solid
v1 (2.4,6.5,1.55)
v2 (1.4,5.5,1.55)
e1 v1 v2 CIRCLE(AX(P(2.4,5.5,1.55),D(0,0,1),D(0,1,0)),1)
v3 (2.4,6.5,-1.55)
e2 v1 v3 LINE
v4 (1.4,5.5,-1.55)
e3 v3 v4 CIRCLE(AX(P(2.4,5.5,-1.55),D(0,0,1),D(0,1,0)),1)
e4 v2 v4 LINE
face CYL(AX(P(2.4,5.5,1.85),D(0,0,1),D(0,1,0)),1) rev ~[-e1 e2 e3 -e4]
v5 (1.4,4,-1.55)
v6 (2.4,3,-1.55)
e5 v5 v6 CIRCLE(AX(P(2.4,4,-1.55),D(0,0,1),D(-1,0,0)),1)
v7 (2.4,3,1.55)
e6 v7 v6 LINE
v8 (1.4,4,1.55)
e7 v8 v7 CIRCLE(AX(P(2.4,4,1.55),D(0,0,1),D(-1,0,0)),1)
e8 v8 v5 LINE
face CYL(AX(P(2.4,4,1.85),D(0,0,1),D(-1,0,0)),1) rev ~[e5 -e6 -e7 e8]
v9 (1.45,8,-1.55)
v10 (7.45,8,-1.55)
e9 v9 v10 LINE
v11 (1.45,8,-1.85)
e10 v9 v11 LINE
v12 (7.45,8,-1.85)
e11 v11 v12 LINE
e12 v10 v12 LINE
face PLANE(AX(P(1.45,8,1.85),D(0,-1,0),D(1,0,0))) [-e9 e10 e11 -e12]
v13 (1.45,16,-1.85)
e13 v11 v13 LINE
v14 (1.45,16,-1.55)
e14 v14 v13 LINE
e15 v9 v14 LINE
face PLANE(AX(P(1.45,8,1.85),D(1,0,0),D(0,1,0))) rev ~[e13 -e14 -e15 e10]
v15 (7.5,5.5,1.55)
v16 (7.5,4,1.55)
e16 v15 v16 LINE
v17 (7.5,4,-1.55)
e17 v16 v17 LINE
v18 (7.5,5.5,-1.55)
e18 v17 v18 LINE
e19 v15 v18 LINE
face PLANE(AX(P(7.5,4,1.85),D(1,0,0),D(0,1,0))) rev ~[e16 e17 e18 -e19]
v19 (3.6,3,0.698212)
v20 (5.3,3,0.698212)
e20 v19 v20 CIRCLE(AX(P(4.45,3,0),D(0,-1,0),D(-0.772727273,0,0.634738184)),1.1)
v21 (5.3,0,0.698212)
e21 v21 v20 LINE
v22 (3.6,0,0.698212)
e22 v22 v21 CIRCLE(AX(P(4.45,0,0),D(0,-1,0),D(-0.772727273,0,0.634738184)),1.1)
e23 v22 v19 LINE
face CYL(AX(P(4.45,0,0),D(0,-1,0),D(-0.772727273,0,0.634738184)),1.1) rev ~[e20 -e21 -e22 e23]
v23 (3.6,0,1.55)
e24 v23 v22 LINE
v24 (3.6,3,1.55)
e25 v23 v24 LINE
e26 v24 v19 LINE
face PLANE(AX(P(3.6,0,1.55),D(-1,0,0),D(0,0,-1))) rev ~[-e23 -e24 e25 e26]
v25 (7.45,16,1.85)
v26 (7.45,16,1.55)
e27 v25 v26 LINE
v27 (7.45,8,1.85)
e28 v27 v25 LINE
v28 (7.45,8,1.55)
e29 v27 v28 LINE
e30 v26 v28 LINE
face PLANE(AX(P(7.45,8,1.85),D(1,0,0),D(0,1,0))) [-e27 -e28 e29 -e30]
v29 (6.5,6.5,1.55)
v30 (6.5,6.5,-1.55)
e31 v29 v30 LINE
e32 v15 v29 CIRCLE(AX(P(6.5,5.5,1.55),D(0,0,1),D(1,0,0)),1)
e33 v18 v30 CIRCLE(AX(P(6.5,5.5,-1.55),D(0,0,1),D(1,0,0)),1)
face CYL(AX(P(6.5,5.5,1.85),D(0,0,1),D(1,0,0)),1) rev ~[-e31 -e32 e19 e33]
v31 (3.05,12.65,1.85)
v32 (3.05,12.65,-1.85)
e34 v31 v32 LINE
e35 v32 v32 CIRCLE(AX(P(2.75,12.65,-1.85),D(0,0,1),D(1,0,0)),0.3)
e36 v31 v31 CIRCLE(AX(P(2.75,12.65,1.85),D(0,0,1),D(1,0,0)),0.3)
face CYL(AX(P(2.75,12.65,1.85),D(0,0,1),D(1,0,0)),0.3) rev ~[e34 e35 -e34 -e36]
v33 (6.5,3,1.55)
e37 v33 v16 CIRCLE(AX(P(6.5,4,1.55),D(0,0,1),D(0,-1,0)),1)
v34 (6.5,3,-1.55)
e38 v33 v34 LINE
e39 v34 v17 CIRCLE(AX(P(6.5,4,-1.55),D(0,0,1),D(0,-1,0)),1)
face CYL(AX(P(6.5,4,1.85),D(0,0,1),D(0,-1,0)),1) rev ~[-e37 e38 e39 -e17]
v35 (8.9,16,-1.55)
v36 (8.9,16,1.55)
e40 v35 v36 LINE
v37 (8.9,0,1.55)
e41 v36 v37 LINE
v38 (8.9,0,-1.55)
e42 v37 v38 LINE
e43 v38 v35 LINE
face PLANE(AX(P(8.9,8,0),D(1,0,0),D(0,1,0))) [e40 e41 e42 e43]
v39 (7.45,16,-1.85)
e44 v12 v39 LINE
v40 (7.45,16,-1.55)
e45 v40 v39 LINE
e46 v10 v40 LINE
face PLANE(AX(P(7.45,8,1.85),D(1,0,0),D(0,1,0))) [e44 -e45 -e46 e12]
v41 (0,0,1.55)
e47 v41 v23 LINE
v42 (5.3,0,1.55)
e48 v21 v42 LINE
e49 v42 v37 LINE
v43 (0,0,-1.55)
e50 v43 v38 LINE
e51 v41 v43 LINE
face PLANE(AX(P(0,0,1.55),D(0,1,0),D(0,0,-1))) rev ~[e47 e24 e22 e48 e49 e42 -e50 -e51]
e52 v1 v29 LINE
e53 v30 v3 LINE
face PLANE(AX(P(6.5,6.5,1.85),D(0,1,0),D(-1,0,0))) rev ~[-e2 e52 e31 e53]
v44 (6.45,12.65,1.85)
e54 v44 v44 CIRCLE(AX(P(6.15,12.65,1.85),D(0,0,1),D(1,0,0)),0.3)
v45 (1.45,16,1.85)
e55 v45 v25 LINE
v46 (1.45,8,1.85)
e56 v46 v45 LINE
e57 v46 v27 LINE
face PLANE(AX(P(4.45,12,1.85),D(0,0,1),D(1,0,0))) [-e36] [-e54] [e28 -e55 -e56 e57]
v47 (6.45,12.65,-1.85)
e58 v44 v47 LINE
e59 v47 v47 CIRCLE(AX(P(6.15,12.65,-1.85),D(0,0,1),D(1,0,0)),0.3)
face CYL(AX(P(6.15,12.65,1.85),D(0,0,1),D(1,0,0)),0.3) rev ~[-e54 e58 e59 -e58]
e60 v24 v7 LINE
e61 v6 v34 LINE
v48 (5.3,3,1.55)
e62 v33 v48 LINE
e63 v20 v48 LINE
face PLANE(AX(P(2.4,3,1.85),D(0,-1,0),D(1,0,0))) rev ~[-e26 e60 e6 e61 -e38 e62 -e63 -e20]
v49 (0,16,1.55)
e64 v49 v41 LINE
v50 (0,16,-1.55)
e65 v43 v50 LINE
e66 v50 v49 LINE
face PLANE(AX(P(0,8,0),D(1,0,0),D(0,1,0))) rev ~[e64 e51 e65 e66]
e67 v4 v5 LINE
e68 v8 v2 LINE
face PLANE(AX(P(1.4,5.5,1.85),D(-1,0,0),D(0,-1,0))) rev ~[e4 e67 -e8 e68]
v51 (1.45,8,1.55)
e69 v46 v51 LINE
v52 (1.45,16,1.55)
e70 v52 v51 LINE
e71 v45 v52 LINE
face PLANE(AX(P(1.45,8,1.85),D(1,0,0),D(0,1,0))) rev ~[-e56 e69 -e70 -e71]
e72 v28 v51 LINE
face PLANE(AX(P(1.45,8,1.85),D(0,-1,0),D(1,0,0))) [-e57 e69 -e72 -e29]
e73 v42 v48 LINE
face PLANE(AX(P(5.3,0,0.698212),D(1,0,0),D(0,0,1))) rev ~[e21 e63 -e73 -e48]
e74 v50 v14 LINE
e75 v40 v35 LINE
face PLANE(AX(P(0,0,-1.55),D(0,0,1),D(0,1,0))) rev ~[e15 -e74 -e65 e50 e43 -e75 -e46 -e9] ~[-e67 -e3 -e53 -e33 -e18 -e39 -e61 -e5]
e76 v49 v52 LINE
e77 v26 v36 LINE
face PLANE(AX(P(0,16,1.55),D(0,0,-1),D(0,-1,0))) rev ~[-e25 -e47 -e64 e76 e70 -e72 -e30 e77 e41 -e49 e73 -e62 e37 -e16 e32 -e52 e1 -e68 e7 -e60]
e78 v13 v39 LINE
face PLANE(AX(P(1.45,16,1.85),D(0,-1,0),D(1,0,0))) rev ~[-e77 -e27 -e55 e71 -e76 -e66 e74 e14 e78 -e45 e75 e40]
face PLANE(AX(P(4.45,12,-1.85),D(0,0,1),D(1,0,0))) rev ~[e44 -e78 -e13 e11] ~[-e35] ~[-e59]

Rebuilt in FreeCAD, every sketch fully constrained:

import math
import FreeCAD as App
import Part
import Sketcher


def add_polygon(sketch, points):
    """Adds a closed chain of lines whose ends are joined by coincident constraints."""
    first, n = sketch.GeometryCount, len(points)
    for a, b in zip(points, points[1:] + points[:1]):
        sketch.addGeometry(Part.LineSegment(App.Vector(*a, 0), App.Vector(*b, 0)), False)
    for i in range(n):
        sketch.addConstraint(Sketcher.Constraint("Coincident", first + i, 2, first + (i + 1) % n, 1))

doc = App.newDocument("Part")
body = doc.addObject("PartDesign::Body", "Body")

# Sketch on YZ plane
sketch1 = body.newObject("Sketcher::SketchObject", "Sketch")
sketch1.AttachmentSupport = (doc.getObject("YZ_Plane"), [""])
sketch1.MapMode = "FlatFace"
add_polygon(sketch1, [(0, 1.6), (0, -1.6), (16, -1.6), (16, 1.6)])  # lines 0-3
sketch1.addConstraint([
    Sketcher.Constraint("Vertical", 0),
    Sketcher.Constraint("Horizontal", 1),
    Sketcher.Constraint("Vertical", 2),
    Sketcher.Constraint("Horizontal", 3),
    Sketcher.Constraint("Symmetric", 0, 2, 3, 2, -1, 1),
    Sketcher.Constraint("DistanceX", 1, 1, 1, 2, 16.0),
    Sketcher.Constraint("DistanceY", 0, 2, 0, 1, 3.1),
])
pad1 = body.newObject("PartDesign::Pad", "Pad")
pad1.Profile = sketch1
pad1.Length = 8.9

# Sketch on XY plane
sketch2 = body.newObject("Sketcher::SketchObject", "Sketch001")
sketch2.AttachmentSupport = (doc.getObject("XY_Plane"), [""])
sketch2.MapMode = "FlatFace"
sketch2.AttachmentOffset = App.Placement(App.Vector(0, 0, 1.85), App.Rotation())
add_polygon(sketch2, [(1, 16), (1, 8), (7, 8), (7, 16)])  # lines 0-3
sketch2.addConstraint([
    Sketcher.Constraint("Vertical", 0),
    Sketcher.Constraint("Horizontal", 1),
    Sketcher.Constraint("Vertical", 2),
    Sketcher.Constraint("Horizontal", 3),
    Sketcher.Constraint("DistanceX", 1, 1, 1, 2, 6.0),
    Sketcher.Constraint("DistanceY", 0, 2, 0, 1, 8.0),
    Sketcher.Constraint("DistanceY", -1, 1, 0, 2, 8.0),
    Sketcher.Constraint("DistanceX", -1, 1, 0, 2, 1.45),
])
pad2 = body.newObject("PartDesign::Pad", "Pad001")
pad2.Profile = sketch2
pad2.Length = 3.7
pad2.Reversed = True

# Sketch on XY plane
sketch3 = body.newObject("Sketcher::SketchObject", "Sketch002")
sketch3.AttachmentSupport = (doc.getObject("XY_Plane"), [""])
sketch3.MapMode = "FlatFace"
sketch3.AttachmentOffset = App.Placement(App.Vector(0, 0, 1.85), App.Rotation())
sketch3.addGeometry([
    Part.ArcOfCircle(Part.Circle(App.Vector(2.4, 4, 0), App.Vector(0, 0, 1), 1), math.radians(180), math.radians(270)),  # 0
    Part.LineSegment(App.Vector(2.4, 3, 0), App.Vector(6.5, 3, 0)),  # 1
    Part.ArcOfCircle(Part.Circle(App.Vector(6.5, 4, 0), App.Vector(0, 0, 1), 1), math.radians(-90), math.radians(0)),  # 2
    Part.LineSegment(App.Vector(7.5, 4, 0), App.Vector(7.5, 5.5, 0)),  # 3
    Part.ArcOfCircle(Part.Circle(App.Vector(6.5, 5.5, 0), App.Vector(0, 0, 1), 1), math.radians(0), math.radians(90)),  # 4
    Part.LineSegment(App.Vector(6.5, 6.5, 0), App.Vector(2.4, 6.5, 0)),  # 5
    Part.ArcOfCircle(Part.Circle(App.Vector(2.4, 5.5, 0), App.Vector(0, 0, 1), 1), math.radians(90), math.radians(180)),  # 6
    Part.LineSegment(App.Vector(1.4, 5.5, 0), App.Vector(1.4, 4, 0)),  # 7
    Part.Circle(App.Vector(2.75, 12.65, 0), App.Vector(0, 0, 1), 0.3),  # 8
    Part.Circle(App.Vector(6.15, 12.65, 0), App.Vector(0, 0, 1), 0.3),  # 9
], False)
sketch3.addConstraint([
    Sketcher.Constraint("Tangent", 0, 2, 1, 1),
    Sketcher.Constraint("Tangent", 1, 2, 2, 1),
    Sketcher.Constraint("Tangent", 2, 2, 3, 1),
    Sketcher.Constraint("Tangent", 3, 2, 4, 1),
    Sketcher.Constraint("Tangent", 4, 2, 5, 1),
    Sketcher.Constraint("Tangent", 5, 2, 6, 1),
    Sketcher.Constraint("Tangent", 6, 2, 7, 1),
    Sketcher.Constraint("Tangent", 7, 2, 0, 1),
    Sketcher.Constraint("Horizontal", 1),
    Sketcher.Constraint("Vertical", 3),
    Sketcher.Constraint("Horizontal", 5),
    Sketcher.Constraint("Vertical", 7),
    Sketcher.Constraint("Equal", 0, 2),
    Sketcher.Constraint("Equal", 2, 4),
    Sketcher.Constraint("Equal", 4, 6),
    Sketcher.Constraint("Equal", 8, 9),
    Sketcher.Constraint("Horizontal", 8, 3, 9, 3),
    Sketcher.Constraint("Radius", 0, 1.0),
    Sketcher.Constraint("Diameter", 8, 0.6),
    Sketcher.Constraint("DistanceX", 1, 1, 1, 2, 4.1),
    Sketcher.Constraint("DistanceY", 3, 1, 3, 2, 1.5),
    Sketcher.Constraint("DistanceY", -1, 1, 0, 3, 4.0),
    Sketcher.Constraint("DistanceX", -1, 1, 0, 3, 2.4),
    Sketcher.Constraint("DistanceX", 8, 3, 9, 3, 3.4),
    Sketcher.Constraint("DistanceX", -1, 1, 8, 3, 2.75),
    Sketcher.Constraint("DistanceY", -1, 1, 8, 3, 12.65),
])
pocket1 = body.newObject("PartDesign::Pocket", "Pocket")
pocket1.Profile = sketch3
pocket1.Type = "ThroughAll"

# Sketch on XZ plane
sketch4 = body.newObject("Sketcher::SketchObject", "Sketch003")
sketch4.AttachmentSupport = (doc.getObject("XZ_Plane"), [""])
sketch4.MapMode = "FlatFace"
sketch4.addGeometry([
    Part.LineSegment(App.Vector(5.3, 1.6, 0), App.Vector(3.6, 1.6, 0)),
    Part.LineSegment(App.Vector(3.6, 1.6, 0), App.Vector(3.6, 0.7, 0)),
    Part.ArcOfCircle(Part.Circle(App.Vector(4.5, 0, 0), App.Vector(0, 0, 1), 1.1), math.radians(141), math.radians(399)),
    Part.LineSegment(App.Vector(5.3, 0.7, 0), App.Vector(5.3, 1.6, 0)),
], False)
sketch4.addConstraint([
    Sketcher.Constraint("Coincident", 0, 2, 1, 1),
    Sketcher.Constraint("Coincident", 1, 2, 2, 1),
    Sketcher.Constraint("Coincident", 2, 2, 3, 1),
    Sketcher.Constraint("Coincident", 3, 2, 0, 1),
    Sketcher.Constraint("Horizontal", 0),
    Sketcher.Constraint("Vertical", 1),
    Sketcher.Constraint("Vertical", 3),
    Sketcher.Constraint("PointOnObject", 2, 3, -1),
    Sketcher.Constraint("Horizontal", 1, 2, 2, 2),
    Sketcher.Constraint("Radius", 2, 1.1),
    Sketcher.Constraint("DistanceX", 0, 2, 0, 1, 1.7),
    Sketcher.Constraint("DistanceX", -1, 1, 0, 2, 3.6),
    Sketcher.Constraint("DistanceY", -1, 1, 0, 2, 1.55),
])
pocket2 = body.newObject("PartDesign::Pocket", "Pocket001")
pocket2.Profile = sketch4
pocket2.Length = 3

doc.recompute()
